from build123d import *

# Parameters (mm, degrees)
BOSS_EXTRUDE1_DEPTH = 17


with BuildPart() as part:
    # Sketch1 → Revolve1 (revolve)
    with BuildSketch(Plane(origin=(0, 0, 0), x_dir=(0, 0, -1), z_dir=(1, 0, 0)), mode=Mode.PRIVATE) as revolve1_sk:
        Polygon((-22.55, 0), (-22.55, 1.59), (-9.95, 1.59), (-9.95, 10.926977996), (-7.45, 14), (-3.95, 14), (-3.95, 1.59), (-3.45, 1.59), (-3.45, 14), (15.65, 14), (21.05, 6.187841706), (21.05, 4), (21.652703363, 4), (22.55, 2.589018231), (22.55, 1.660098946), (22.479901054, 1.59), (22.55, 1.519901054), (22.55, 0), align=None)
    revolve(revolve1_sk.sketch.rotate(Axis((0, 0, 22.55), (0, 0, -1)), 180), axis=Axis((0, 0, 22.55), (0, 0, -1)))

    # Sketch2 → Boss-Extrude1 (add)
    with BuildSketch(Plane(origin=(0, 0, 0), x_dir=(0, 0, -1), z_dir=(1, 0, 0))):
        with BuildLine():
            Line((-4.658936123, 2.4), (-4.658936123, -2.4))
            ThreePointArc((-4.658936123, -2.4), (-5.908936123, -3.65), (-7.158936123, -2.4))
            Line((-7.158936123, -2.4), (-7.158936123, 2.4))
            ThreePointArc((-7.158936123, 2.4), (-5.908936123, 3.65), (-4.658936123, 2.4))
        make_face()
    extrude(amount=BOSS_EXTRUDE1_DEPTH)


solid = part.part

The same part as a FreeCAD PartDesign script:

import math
import FreeCAD as App
import Part
import Sketcher

V = App.Vector


def add_polygon(sketch, points):
    """Adds a closed chain of lines whose ends are joined by coincident constraints."""
    first, n = sketch.GeometryCount, len(points)
    for a, b in zip(points, points[1:] + points[:1]):
        sketch.addGeometry(Part.LineSegment(App.Vector(*a, 0), App.Vector(*b, 0)), False)
    for i in range(n):
        sketch.addConstraint(Sketcher.Constraint("Coincident", first + i, 2, first + (i + 1) % n, 1))

doc = App.newDocument("Part")
body = doc.addObject("PartDesign::Body", "Body")

# Sketch on YZ plane
sketch1 = doc.addObject("Sketcher::SketchObject", "Sketch")
body.addObject(sketch1)
sketch1.AttachmentSupport = (doc.YZ_Plane, [""])
sketch1.MapMode = "FlatFace"
add_polygon(sketch1, [(1.59, 22.55), (0, 22.55), (0, -22.55), (1.52, -22.55), (1.59, -22.48), (1.66, -22.55), (2.59, -22.55), (4, -21.65), (4, -21.05), (6.19, -21.05), (14, -15.65), (14, 3.45), (1.59, 3.45), (1.59, 3.95), (14, 3.95), (14, 7.45), (10.93, 9.95), (1.59, 9.95)])  # lines 0-17
sketch1.addConstraint([
    Sketcher.Constraint("Horizontal", 0),
    Sketcher.Constraint("Vertical", 1),
    Sketcher.Constraint("Horizontal", 2),
    Sketcher.Constraint("Horizontal", 5),
    Sketcher.Constraint("Vertical", 7),
    Sketcher.Constraint("Horizontal", 8),
    Sketcher.Constraint("Vertical", 10),
    Sketcher.Constraint("Horizontal", 11),
    Sketcher.Constraint("Vertical", 12),
    Sketcher.Constraint("Horizontal", 13),
    Sketcher.Constraint("Vertical", 14),
    Sketcher.Constraint("Horizontal", 16),
    Sketcher.Constraint("Vertical", 17),
    Sketcher.Constraint("Symmetric", 0, 2, 1, 2, -1, 1),
    Sketcher.Constraint("Perpendicular", 3, 4),
    Sketcher.Constraint("Horizontal", 2, 2, 4, 2),
    Sketcher.Constraint("Vertical", 3, 2, 11, 2),
    Sketcher.Constraint("Vertical", 10, 2, 13, 2),
    Sketcher.Constraint("Vertical", 12, 2, 16, 2),
    Sketcher.Constraint("Equal", 3, 4),
    Sketcher.Constraint("DistanceY", 1, 2, 1, 1, 45.1),
    Sketcher.Constraint("DistanceY", 10, 1, 10, 2, 19.1),
    Sketcher.Constraint("DistanceY", 12, 1, 12, 2, 0.5),
    Sketcher.Constraint("DistanceY", 14, 1, 14, 2, 3.5),
    Sketcher.Constraint("DistanceY", 17, 1, 17, 2, 12.6),
    Sketcher.Constraint("DistanceX", -1, 1, 6, 2, 4.0),
    Sketcher.Constraint("DistanceX", -1, 1, 9, 2, 14.0),
    Sketcher.Constraint("DistanceY", 7, 2, 12, 2, 25.0),
    Sketcher.Constraint("DistanceY", 13, 2, 15, 2, 6.0),
    Sketcher.Constraint("DistanceX", 0, 2, 0, 1, 1.59),
    Sketcher.Constraint("DistanceX", 2, 1, 2, 2, 1.519901),
    Sketcher.Constraint("DistanceX", 5, 1, 5, 2, 0.928919),
    Sketcher.Constraint("DistanceX", 8, 1, 8, 2, 2.187842),
    Sketcher.Constraint("DistanceX", 16, 2, 16, 1, 9.336978),
    Sketcher.Constraint("DistanceY", 7, 1, 7, 2, 0.602703),
])
revolution = doc.addObject("PartDesign::Revolution", "Revolution")
body.addObject(revolution)
revolution.Profile = sketch1
revolution.ReferenceAxis = (sketch1, ["V_Axis"])
revolution.Angle = 360

# Sketch on YZ plane
sketch2 = doc.addObject("Sketcher::SketchObject", "Sketch001")
body.addObject(sketch2)
sketch2.AttachmentSupport = (doc.YZ_Plane, [""])
sketch2.MapMode = "FlatFace"
sketch2.addGeometry([
    Part.LineSegment(V(-2.4, 4.7, 0), V(2.4, 4.7, 0)),
    Part.ArcOfCircle(Part.Circle(V(2.4, 5.9, 0), V(0, 0, 1), 1.2), math.radians(-90), math.radians(90)),
    Part.LineSegment(V(2.4, 7.2, 0), V(-2.4, 7.2, 0)),
    Part.ArcOfCircle(Part.Circle(V(-2.4, 5.9, 0), V(0, 0, 1), 1.2), math.radians(90), math.radians(270)),
], False)
sketch2.addConstraint([
    Sketcher.Constraint("Tangent", 0, 2, 1, 1),
    Sketcher.Constraint("Tangent", 1, 2, 2, 1),
    Sketcher.Constraint("Tangent", 2, 2, 3, 1),
    Sketcher.Constraint("Tangent", 3, 2, 0, 1),
    Sketcher.Constraint("Horizontal", 0),
    Sketcher.Constraint("Horizontal", 2),
    Sketcher.Constraint("Radius", 1, 1.25),
    Sketcher.Constraint("DistanceX", 0, 1, 0, 2, 4.8),
    Sketcher.Constraint("DistanceX", -1, 1, 1, 3, 2.4),
    Sketcher.Constraint("DistanceY", -1, 1, 1, 3, 5.908936),
])
pad1 = doc.addObject("PartDesign::Pad", "Pad")
body.addObject(pad1)
pad1.Profile = sketch2
pad1.Length = 17

doc.recompute()
